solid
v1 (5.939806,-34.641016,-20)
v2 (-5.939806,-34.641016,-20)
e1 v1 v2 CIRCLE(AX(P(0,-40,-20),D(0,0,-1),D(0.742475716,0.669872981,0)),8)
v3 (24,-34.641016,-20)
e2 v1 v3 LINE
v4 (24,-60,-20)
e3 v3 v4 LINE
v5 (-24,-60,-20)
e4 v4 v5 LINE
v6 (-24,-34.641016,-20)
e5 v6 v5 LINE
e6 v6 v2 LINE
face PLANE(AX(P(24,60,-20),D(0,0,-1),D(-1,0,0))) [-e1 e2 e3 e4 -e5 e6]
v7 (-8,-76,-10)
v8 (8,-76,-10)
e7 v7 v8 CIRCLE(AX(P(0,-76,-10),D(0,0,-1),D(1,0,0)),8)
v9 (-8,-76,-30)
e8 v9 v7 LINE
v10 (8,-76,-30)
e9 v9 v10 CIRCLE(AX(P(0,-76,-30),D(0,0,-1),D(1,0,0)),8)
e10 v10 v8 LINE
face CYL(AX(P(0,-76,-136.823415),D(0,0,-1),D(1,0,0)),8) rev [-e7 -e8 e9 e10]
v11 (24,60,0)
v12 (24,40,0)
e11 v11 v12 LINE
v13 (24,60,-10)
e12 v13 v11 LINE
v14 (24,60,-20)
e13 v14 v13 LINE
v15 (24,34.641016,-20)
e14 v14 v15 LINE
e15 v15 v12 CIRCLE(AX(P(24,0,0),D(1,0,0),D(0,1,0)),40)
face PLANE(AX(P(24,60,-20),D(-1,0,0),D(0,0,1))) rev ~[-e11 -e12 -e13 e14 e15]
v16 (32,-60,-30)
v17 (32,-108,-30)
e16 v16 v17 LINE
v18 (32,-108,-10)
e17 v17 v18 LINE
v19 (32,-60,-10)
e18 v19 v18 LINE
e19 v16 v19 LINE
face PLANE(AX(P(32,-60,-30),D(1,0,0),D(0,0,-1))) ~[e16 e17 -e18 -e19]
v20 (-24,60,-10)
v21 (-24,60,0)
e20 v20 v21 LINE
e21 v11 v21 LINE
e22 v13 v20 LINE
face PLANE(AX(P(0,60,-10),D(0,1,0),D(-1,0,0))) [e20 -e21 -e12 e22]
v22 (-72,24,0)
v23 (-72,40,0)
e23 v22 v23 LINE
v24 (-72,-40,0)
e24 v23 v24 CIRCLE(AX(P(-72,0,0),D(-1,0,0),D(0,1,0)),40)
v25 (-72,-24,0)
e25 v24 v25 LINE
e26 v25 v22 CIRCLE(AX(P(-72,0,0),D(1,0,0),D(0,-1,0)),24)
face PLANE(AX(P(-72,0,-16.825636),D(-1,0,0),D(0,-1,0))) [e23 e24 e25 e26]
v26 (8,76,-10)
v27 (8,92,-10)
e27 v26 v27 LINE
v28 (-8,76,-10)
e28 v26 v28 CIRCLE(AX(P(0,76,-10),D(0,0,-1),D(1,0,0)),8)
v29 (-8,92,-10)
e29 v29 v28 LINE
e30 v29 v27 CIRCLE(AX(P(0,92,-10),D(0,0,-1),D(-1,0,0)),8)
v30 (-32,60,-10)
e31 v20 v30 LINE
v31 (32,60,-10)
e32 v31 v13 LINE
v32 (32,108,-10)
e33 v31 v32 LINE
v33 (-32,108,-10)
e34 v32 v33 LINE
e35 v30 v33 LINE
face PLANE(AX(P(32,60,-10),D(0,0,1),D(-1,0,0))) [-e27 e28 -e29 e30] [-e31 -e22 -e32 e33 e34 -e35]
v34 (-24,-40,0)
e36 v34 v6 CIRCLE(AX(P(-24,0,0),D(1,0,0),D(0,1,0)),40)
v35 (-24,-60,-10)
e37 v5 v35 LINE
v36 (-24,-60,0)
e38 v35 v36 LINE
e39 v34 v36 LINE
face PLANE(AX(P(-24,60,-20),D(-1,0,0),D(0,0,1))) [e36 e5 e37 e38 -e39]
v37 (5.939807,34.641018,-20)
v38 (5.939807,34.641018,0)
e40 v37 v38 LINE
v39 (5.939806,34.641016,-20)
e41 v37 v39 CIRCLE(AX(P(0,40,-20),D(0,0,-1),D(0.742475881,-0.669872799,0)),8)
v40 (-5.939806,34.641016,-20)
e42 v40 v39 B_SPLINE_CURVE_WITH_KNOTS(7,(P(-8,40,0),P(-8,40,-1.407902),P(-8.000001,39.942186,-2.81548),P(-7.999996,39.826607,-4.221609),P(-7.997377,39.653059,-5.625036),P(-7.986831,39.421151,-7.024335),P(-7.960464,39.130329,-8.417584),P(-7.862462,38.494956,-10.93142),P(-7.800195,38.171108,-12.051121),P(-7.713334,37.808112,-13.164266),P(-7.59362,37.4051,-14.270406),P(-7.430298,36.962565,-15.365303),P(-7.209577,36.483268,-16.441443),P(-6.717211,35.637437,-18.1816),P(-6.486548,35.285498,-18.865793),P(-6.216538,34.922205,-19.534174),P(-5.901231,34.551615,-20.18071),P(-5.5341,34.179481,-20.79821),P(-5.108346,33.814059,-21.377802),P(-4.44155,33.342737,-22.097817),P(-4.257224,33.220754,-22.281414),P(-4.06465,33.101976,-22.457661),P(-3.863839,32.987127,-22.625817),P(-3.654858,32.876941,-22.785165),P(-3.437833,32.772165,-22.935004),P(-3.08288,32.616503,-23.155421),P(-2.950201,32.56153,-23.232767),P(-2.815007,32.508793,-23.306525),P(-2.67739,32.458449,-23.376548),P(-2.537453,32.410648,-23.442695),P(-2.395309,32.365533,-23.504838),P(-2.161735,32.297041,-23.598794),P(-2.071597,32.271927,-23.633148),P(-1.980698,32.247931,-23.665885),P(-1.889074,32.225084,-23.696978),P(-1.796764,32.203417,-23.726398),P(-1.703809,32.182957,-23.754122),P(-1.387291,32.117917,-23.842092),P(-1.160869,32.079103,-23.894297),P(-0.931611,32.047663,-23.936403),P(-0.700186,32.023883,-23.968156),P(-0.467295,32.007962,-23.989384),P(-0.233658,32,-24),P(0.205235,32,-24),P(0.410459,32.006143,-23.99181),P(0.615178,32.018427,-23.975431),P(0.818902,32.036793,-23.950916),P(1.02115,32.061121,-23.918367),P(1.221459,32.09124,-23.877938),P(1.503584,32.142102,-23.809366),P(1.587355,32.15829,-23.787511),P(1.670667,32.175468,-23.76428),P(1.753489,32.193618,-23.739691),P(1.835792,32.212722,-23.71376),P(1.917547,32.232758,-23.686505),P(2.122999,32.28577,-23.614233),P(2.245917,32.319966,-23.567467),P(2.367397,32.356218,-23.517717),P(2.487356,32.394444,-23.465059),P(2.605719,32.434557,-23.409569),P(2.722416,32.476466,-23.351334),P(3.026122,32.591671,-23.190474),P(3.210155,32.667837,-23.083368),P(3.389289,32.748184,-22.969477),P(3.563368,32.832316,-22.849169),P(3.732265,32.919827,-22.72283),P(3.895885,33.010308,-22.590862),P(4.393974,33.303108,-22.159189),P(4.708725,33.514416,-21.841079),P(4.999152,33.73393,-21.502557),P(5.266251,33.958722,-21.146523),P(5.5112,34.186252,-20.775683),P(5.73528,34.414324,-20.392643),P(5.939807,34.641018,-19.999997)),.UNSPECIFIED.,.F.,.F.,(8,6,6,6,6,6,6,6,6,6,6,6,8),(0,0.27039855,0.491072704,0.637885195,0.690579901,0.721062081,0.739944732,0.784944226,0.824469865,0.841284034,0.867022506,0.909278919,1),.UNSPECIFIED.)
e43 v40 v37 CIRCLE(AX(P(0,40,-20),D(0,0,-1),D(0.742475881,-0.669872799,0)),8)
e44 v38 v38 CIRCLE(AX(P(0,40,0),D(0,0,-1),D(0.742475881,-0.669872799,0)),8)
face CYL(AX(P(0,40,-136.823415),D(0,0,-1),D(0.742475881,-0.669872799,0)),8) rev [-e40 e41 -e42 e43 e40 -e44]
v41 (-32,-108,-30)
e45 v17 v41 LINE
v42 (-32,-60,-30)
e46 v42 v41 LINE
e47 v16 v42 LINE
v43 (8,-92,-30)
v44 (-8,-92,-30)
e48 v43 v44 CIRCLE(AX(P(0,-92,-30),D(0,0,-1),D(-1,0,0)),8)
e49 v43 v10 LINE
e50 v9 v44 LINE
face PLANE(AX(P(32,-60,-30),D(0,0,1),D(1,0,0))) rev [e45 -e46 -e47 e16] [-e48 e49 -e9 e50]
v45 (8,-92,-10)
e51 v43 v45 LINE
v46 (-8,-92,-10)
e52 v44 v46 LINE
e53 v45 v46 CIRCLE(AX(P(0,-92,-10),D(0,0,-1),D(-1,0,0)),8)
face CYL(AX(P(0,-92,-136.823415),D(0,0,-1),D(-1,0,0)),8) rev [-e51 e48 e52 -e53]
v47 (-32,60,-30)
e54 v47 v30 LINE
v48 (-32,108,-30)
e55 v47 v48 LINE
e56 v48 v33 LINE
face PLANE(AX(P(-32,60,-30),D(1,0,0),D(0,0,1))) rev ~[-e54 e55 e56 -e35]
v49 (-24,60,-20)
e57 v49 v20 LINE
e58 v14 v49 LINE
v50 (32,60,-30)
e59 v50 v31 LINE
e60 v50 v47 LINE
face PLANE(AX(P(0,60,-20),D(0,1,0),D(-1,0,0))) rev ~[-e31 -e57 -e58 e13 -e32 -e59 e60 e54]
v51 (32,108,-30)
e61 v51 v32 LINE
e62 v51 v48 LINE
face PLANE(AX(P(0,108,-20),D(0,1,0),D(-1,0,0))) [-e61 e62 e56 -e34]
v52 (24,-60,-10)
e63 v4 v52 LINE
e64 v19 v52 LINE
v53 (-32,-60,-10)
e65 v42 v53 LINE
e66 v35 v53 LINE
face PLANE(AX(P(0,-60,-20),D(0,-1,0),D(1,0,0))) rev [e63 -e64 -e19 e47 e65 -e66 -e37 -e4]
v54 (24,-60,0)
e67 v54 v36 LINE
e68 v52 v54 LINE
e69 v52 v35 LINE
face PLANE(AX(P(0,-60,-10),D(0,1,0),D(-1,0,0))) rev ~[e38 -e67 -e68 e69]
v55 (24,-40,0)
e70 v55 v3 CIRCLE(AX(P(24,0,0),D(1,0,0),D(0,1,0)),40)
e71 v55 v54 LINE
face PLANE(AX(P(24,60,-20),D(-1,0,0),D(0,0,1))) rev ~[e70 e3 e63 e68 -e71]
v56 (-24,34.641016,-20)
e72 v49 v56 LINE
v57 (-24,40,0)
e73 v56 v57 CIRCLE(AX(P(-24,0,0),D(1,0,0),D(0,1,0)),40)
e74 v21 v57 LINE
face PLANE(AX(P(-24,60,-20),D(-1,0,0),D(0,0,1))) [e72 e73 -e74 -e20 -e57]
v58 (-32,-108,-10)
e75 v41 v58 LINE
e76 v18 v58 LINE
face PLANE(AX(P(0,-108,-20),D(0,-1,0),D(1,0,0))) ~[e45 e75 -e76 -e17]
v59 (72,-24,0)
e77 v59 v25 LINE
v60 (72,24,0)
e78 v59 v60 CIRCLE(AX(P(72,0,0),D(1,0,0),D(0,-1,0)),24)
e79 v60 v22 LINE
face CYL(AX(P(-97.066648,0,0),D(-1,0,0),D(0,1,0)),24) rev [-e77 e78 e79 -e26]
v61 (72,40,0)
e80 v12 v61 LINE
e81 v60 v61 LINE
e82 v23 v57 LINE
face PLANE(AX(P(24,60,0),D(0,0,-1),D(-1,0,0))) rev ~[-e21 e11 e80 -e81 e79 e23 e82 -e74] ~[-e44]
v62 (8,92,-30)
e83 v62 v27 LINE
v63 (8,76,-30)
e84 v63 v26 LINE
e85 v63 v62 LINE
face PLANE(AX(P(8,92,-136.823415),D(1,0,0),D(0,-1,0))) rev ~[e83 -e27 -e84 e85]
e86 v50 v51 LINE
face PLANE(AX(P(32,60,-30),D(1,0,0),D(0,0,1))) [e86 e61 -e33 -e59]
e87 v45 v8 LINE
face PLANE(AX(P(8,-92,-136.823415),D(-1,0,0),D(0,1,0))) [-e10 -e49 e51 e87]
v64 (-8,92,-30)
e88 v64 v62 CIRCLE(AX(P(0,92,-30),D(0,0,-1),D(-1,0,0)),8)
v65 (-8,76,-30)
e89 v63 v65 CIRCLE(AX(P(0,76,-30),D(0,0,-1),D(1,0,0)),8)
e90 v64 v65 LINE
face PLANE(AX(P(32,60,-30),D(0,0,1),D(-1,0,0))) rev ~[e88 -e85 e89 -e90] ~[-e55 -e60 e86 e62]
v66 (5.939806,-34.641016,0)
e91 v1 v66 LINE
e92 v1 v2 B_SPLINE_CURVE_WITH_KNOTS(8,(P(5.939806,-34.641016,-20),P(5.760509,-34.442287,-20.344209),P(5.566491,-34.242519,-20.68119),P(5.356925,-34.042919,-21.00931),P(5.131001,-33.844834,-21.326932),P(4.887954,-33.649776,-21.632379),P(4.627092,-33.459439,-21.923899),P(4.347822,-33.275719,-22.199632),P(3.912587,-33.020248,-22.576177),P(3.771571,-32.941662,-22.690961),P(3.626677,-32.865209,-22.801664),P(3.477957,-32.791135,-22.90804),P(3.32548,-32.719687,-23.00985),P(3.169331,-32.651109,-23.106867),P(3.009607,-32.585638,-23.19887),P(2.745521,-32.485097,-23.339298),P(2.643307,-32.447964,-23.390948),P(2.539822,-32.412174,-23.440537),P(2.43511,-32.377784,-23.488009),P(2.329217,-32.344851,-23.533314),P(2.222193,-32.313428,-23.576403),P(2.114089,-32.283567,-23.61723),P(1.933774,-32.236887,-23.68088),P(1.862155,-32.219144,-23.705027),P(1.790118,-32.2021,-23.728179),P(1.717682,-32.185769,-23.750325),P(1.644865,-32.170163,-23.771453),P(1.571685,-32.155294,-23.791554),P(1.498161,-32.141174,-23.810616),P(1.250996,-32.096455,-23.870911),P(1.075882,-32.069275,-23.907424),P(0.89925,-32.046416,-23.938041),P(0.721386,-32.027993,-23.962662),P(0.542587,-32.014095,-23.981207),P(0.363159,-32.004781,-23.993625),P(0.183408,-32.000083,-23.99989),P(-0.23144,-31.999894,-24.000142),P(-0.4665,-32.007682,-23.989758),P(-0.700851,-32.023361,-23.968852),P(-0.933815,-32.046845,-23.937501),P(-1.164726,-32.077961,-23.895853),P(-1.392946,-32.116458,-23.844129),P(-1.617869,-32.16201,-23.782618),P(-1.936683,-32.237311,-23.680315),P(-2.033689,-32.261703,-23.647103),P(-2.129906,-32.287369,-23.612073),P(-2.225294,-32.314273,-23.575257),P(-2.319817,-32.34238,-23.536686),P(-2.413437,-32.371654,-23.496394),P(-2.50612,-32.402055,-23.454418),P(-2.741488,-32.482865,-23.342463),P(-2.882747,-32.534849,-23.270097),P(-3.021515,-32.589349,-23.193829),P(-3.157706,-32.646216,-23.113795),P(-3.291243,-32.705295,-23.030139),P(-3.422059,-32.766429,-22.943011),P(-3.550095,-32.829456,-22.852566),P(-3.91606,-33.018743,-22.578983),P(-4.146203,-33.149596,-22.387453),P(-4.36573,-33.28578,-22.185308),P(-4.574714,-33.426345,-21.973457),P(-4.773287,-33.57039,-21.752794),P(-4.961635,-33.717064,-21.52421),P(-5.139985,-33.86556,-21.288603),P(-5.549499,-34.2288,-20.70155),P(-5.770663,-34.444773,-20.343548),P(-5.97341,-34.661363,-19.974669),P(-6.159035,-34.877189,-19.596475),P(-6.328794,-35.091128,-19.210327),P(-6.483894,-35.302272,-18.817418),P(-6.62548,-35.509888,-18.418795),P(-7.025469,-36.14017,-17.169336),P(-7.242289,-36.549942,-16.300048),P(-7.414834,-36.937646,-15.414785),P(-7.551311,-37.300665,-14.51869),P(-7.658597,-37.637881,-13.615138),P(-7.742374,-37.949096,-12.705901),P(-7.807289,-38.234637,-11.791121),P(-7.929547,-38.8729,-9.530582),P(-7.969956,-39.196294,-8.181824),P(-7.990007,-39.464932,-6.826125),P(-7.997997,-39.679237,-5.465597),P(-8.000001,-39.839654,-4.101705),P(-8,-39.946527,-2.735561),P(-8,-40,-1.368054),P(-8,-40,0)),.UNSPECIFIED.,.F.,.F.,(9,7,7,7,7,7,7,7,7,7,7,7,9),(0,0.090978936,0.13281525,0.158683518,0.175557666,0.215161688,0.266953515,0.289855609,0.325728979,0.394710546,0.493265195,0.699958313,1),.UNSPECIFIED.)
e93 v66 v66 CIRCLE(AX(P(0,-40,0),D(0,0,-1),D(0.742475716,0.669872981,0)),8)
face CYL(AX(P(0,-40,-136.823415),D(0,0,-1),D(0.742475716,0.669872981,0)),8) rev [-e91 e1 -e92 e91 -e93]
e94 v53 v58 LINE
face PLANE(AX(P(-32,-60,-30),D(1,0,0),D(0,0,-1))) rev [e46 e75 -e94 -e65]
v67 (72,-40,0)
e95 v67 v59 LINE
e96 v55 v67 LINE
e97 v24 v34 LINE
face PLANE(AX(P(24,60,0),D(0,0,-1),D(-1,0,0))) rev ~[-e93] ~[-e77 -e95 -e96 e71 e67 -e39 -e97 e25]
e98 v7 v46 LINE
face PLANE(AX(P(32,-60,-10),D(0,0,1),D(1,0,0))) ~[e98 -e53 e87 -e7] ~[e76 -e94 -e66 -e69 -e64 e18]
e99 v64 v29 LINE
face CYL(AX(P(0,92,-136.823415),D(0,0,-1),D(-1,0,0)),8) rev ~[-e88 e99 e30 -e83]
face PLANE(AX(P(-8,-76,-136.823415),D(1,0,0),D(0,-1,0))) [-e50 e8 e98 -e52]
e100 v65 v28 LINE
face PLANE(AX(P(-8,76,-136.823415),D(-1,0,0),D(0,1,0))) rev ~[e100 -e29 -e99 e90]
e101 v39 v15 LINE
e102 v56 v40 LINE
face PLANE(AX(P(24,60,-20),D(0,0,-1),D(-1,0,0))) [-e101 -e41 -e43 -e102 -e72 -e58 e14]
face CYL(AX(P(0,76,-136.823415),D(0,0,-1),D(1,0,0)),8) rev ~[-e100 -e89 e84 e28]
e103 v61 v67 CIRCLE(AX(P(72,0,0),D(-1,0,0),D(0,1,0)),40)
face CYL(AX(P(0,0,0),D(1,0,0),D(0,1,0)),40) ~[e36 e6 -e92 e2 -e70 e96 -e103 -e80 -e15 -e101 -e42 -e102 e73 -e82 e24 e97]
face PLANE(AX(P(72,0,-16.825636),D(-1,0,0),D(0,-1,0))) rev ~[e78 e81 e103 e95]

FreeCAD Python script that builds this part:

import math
import FreeCAD as App
import Part
import Sketcher
from FreeCAD import Vector
Q = App.Units.Quantity

doc = App.newDocument("Part")
body = doc.addObject("PartDesign::Body", "Body")

# Sketch on YZ plane
sketch1 = doc.addObject("Sketcher::SketchObject", "Sketch")
body.addObject(sketch1)
sketch1.AttachmentSupport = (doc.YZ_Plane, [""])
sketch1.MapMode = "FlatFace"
sketch1.addGeometry([
    Part.LineSegment(Vector(-24, 0, 0), Vector(-40, 0, 0)),
    Part.ArcOfCircle(Part.Circle(Vector(0, 0, 0), Vector(0, 0, 1), 40), math.radians(180), math.radians(360)),
    Part.LineSegment(Vector(40, 0, 0), Vector(24, 0, 0)),
    Part.ArcOfCircle(Part.Circle(Vector(0, 0, 0), Vector(0, 0, 1), 24), math.radians(180), math.radians(360)),
], False)
sketch1.addConstraint([
    Sketcher.Constraint("Coincident", 0, 2, 1, 1),
    Sketcher.Constraint("Coincident", 1, 2, 2, 1),
    Sketcher.Constraint("Coincident", 2, 2, 3, 2),
    Sketcher.Constraint("Coincident", 3, 1, 0, 1),
    Sketcher.Constraint("Horizontal", 0),
    Sketcher.Constraint("Horizontal", 2),
    Sketcher.Constraint("Coincident", 1, 3, -1, 1),
    Sketcher.Constraint("Coincident", 3, 3, -1, 1),
    Sketcher.Constraint("PointOnObject", 0, 2, -1),
    Sketcher.Constraint("PointOnObject", 1, 2, -1),
    Sketcher.Constraint("Radius", 1, Q("40 mm")),
    Sketcher.Constraint("Radius", 3, Q("24 mm")),
])
pad1 = doc.addObject("PartDesign::Pad", "Pad")
body.addObject(pad1)
pad1.Profile = sketch1
pad1.Length = 144
pad1.Midplane = True

# Sketch on XZ plane
sketch2 = doc.addObject("Sketcher::SketchObject", "Sketch001")
body.addObject(sketch2)
sketch2.AttachmentSupport = (doc.XZ_Plane, [""])
sketch2.MapMode = "FlatFace"
sketch2.AttachmentOffset = App.Placement(Vector(0, 0, -60), App.Rotation())
sketch2.addGeometry([
    Part.LineSegment(Vector(24, 0, 0), Vector(24, -20, 0)),
    Part.LineSegment(Vector(24, -20, 0), Vector(-24, -20, 0)),
    Part.LineSegment(Vector(-24, -20, 0), Vector(-24, 0, 0)),
    Part.LineSegment(Vector(-24, 0, 0), Vector(24, 0, 0)),
], False)
sketch2.addConstraint([
    Sketcher.Constraint("Coincident", 0, 2, 1, 1),
    Sketcher.Constraint("Coincident", 1, 2, 2, 1),
    Sketcher.Constraint("Coincident", 2, 2, 3, 1),
    Sketcher.Constraint("Coincident", 3, 2, 0, 1),
    Sketcher.Constraint("Vertical", 0),
    Sketcher.Constraint("Horizontal", 1),
    Sketcher.Constraint("Vertical", 2),
    Sketcher.Constraint("Horizontal", 3),
    Sketcher.Constraint("Symmetric", 2, 2, 3, 2, -1, 1),
    Sketcher.Constraint("DistanceX", 1, 2, 1, 1, Q("48 mm")),
    Sketcher.Constraint("DistanceY", 0, 2, 0, 1, Q("20 mm")),
])
pad2 = doc.addObject("PartDesign::Pad", "Pad001")
body.addObject(pad2)
pad2.Profile = sketch2
pad2.Length = 120

# Sketch on YZ plane
sketch3 = doc.addObject("Sketcher::SketchObject", "Sketch002")
body.addObject(sketch3)
sketch3.AttachmentSupport = (doc.YZ_Plane, [""])
sketch3.MapMode = "FlatFace"
sketch3.AttachmentOffset = App.Placement(Vector(0, 0, 24), App.Rotation())
sketch3.addGeometry(Part.Circle(Vector(0, 0, 0), Vector(0, 0, 1), 24), False)
sketch3.addConstraint([
    Sketcher.Constraint("Coincident", 0, 3, -1, 1),
    Sketcher.Constraint("Diameter", 0, Q("48 mm")),
])
pocket1 = doc.addObject("PartDesign::Pocket", "Pocket")
body.addObject(pocket1)
pocket1.Profile = sketch3
pocket1.Type = "ThroughAll"
pocket1.Midplane = True

# Sketch on XZ plane
sketch4 = doc.addObject("Sketcher::SketchObject", "Sketch003")
body.addObject(sketch4)
sketch4.AttachmentSupport = (doc.XZ_Plane, [""])
sketch4.MapMode = "FlatFace"
sketch4.AttachmentOffset = App.Placement(Vector(0, 0, -60), App.Rotation())
sketch4.addGeometry([
    Part.LineSegment(Vector(32, -10, 0), Vector(32, -30, 0)),
    Part.LineSegment(Vector(32, -30, 0), Vector(-32, -30, 0)),
    Part.LineSegment(Vector(-32, -30, 0), Vector(-32, -10, 0)),
    Part.LineSegment(Vector(-32, -10, 0), Vector(32, -10, 0)),
], False)
sketch4.addConstraint([
    Sketcher.Constraint("Coincident", 0, 2, 1, 1),
    Sketcher.Constraint("Coincident", 1, 2, 2, 1),
    Sketcher.Constraint("Coincident", 2, 2, 3, 1),
    Sketcher.Constraint("Coincident", 3, 2, 0, 1),
    Sketcher.Constraint("Vertical", 0),
    Sketcher.Constraint("Horizontal", 1),
    Sketcher.Constraint("Vertical", 2),
    Sketcher.Constraint("Horizontal", 3),
    Sketcher.Constraint("DistanceX", 1, 2, 1, 1, Q("64 mm")),
    Sketcher.Constraint("DistanceY", 0, 2, 0, 1, Q("20 mm")),
    Sketcher.Constraint("DistanceX", -1, 1, 0, 2, Q("32 mm")),
    Sketcher.Constraint("DistanceY", 0, 2, -1, 1, Q("30 mm")),
])
pad3 = doc.addObject("PartDesign::Pad", "Pad002")
body.addObject(pad3)
pad3.Profile = sketch4
pad3.Length = 48
pad3.Reversed = True
doc.recompute()

mirrored = doc.addObject("PartDesign::Mirrored", "Mirrored")
body.addObject(mirrored)
mirrored.Originals = [pad3]
mirrored.MirrorPlane = (doc.XZ_Plane, [""])
body.Tip = mirrored

# Sketch on XY plane
sketch5 = doc.addObject("Sketcher::SketchObject", "Sketch004")
body.addObject(sketch5)
sketch5.AttachmentSupport = (doc.XY_Plane, [""])
sketch5.MapMode = "FlatFace"
sketch5.addGeometry([
    Part.Circle(Vector(0, 40, 0), Vector(0, 0, 1), 8),  # 0
    Part.Circle(Vector(0, -40, 0), Vector(0, 0, 1), 8),  # 1
    Part.LineSegment(Vector(8, 76, 0), Vector(8, 92, 0)),  # 2
    Part.ArcOfCircle(Part.Circle(Vector(0, 92, 0), Vector(0, 0, 1), 8), math.radians(0), math.radians(180)),  # 3
    Part.LineSegment(Vector(-8, 92, 0), Vector(-8, 76, 0)),  # 4
    Part.ArcOfCircle(Part.Circle(Vector(0, 76, 0), Vector(0, 0, 1), 8), math.radians(180), math.radians(360)),  # 5
    Part.LineSegment(Vector(8, -92, 0), Vector(8, -76, 0)),  # 6
    Part.ArcOfCircle(Part.Circle(Vector(0, -76, 0), Vector(0, 0, 1), 8), math.radians(0), math.radians(180)),  # 7
    Part.LineSegment(Vector(-8, -76, 0), Vector(-8, -92, 0)),  # 8
    Part.ArcOfCircle(Part.Circle(Vector(0, -92, 0), Vector(0, 0, 1), 8), math.radians(180), math.radians(360)),  # 9
], False)
sketch5.addConstraint([
    Sketcher.Constraint("Tangent", 2, 2, 3, 1),
    Sketcher.Constraint("Tangent", 3, 2, 4, 1),
    Sketcher.Constraint("Tangent", 4, 2, 5, 1),
    Sketcher.Constraint("Tangent", 5, 2, 2, 1),
    Sketcher.Constraint("Tangent", 6, 2, 7, 1),
    Sketcher.Constraint("Tangent", 7, 2, 8, 1),
    Sketcher.Constraint("Tangent", 8, 2, 9, 1),
    Sketcher.Constraint("Tangent", 9, 2, 6, 1),
    Sketcher.Constraint("Vertical", 2),
    Sketcher.Constraint("Vertical", 4),
    Sketcher.Constraint("Vertical", 6),
    Sketcher.Constraint("Vertical", 8),
    Sketcher.Constraint("Equal", 0, 1),
    Sketcher.Constraint("Equal", 1, 3),
    Sketcher.Constraint("Equal", 5, 7),
    Sketcher.Constraint("Symmetric", 0, 3, 1, 3, -1, 1),
    Sketcher.Constraint("Symmetric", 5, 3, 7, 3, -1, 1),
    Sketcher.Constraint("Symmetric", 3, 3, 9, 3, -1),
    Sketcher.Constraint("PointOnObject", 0, 3, -2),
    Sketcher.Constraint("Diameter", 0, Q("16 mm")),
    Sketcher.Constraint("DistanceY", 2, 1, 2, 2, Q("16 mm")),
    Sketcher.Constraint("DistanceY", -1, 1, 0, 3, Q("40 mm")),
    Sketcher.Constraint("DistanceY", -1, 1, 3, 3, Q("92 mm")),
])
pocket2 = doc.addObject("PartDesign::Pocket", "Pocket001")
body.addObject(pocket2)
pocket2.Profile = sketch5
pocket2.Type = "ThroughAll"
pocket2.Midplane = True

doc.recompute()
